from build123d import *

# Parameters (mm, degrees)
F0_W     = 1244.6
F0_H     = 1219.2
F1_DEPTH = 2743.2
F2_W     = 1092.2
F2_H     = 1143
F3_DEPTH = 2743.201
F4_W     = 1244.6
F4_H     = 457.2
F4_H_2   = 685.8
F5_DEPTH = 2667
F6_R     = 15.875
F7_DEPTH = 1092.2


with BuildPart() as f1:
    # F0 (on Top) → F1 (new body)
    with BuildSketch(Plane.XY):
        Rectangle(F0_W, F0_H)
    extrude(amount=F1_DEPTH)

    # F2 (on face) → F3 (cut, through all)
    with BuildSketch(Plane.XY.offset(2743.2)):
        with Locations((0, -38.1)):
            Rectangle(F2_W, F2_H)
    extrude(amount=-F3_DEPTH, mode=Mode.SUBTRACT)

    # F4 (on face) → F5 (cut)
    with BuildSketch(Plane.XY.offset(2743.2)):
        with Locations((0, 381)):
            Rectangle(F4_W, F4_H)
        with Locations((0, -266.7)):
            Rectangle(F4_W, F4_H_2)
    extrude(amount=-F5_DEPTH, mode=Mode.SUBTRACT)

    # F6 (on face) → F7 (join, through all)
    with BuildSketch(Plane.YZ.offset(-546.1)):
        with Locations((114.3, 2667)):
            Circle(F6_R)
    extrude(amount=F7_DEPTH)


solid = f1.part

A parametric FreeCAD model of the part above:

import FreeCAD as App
import Part
import Sketcher
from FreeCAD import Vector
Q = App.Units.Quantity


def add_polygon(sketch, points):
    """Adds a closed chain of lines whose ends are joined by coincident constraints."""
    first, n = sketch.GeometryCount, len(points)
    for a, b in zip(points, points[1:] + points[:1]):
        sketch.addGeometry(Part.LineSegment(App.Vector(*a, 0), App.Vector(*b, 0)), False)
    for i in range(n):
        sketch.addConstraint(Sketcher.Constraint("Coincident", first + i, 2, first + (i + 1) % n, 1))

doc = App.newDocument("Part")
body = doc.addObject("PartDesign::Body", "Body")

# Sketch on XY plane
sketch1 = body.newObject("Sketcher::SketchObject", "Sketch")
sketch1.AttachmentSupport = (doc.getObject("XY_Plane"), [""])
sketch1.MapMode = "FlatFace"
add_polygon(sketch1, [(-622, 610), (-622, -610), (622, -610), (622, 610)])  # lines 0-3
sketch1.addConstraint([
    Sketcher.Constraint("Vertical", 0),
    Sketcher.Constraint("Horizontal", 1),
    Sketcher.Constraint("Vertical", 2),
    Sketcher.Constraint("Horizontal", 3),
    Sketcher.Constraint("Symmetric", 0, 2, 2, 2, -1, 1),
    Sketcher.Constraint("DistanceX", 1, 1, 1, 2, Q("49 in")),
    Sketcher.Constraint("DistanceY", 0, 2, 0, 1, Q("48 in")),
])
pad1 = body.newObject("PartDesign::Pad", "Pad")
pad1.Profile = sketch1
pad1.Length = Q("108 in")

# Sketch on XY plane
sketch2 = body.newObject("Sketcher::SketchObject", "Sketch001")
sketch2.AttachmentSupport = (doc.getObject("XY_Plane"), [""])
sketch2.MapMode = "FlatFace"
sketch2.AttachmentOffset = App.Placement(Vector(0, 0, 108 * 25.4), App.Rotation())
add_polygon(sketch2, [(-546, 533), (-546, -610), (546, -610), (546, 533)])  # lines 0-3
sketch2.addConstraint([
    Sketcher.Constraint("Vertical", 0),
    Sketcher.Constraint("Horizontal", 1),
    Sketcher.Constraint("Vertical", 2),
    Sketcher.Constraint("Horizontal", 3),
    Sketcher.Constraint("DistanceX", 1, 1, 1, 2, Q("43 in")),
    Sketcher.Constraint("DistanceY", 0, 2, 0, 1, Q("45 in")),
    Sketcher.Constraint("DistanceY", 0, 2, -1, 1, Q("24 in")),
    Sketcher.Constraint("DistanceX", 0, 2, -1, 1, Q("21.5 in")),
])
pocket1 = body.newObject("PartDesign::Pocket", "Pocket")
pocket1.Profile = sketch2
pocket1.Type = "ThroughAll"

# Sketch on XY plane
sketch3 = body.newObject("Sketcher::SketchObject", "Sketch002")
sketch3.AttachmentSupport = (doc.getObject("XY_Plane"), [""])
sketch3.MapMode = "FlatFace"
sketch3.AttachmentOffset = App.Placement(Vector(0, 0, 108 * 25.4), App.Rotation())
add_polygon(sketch3, [(-622, 610), (-622, 152), (622, 152), (622, 610)])  # lines 0-3
add_polygon(sketch3, [(-622, 76), (-622, -610), (622, -610), (622, 76)])  # lines 4-7
sketch3.addConstraint([
    Sketcher.Constraint("Vertical", 0),
    Sketcher.Constraint("Horizontal", 1),
    Sketcher.Constraint("Vertical", 2),
    Sketcher.Constraint("Horizontal", 3),
    Sketcher.Constraint("Vertical", 4),
    Sketcher.Constraint("Horizontal", 5),
    Sketcher.Constraint("Vertical", 6),
    Sketcher.Constraint("Horizontal", 7),
    Sketcher.Constraint("Symmetric", 2, 2, 4, 2, -1, 1),
    Sketcher.Constraint("Vertical", 3, 2, 4, 2),
    Sketcher.Constraint("Vertical", 2, 2, 5, 2),
    Sketcher.Constraint("DistanceX", 1, 1, 1, 2, Q("49 in")),
    Sketcher.Constraint("DistanceY", 0, 2, 0, 1, Q("18 in")),
    Sketcher.Constraint("DistanceY", 4, 2, 4, 1, Q("27 in")),
    Sketcher.Constraint("DistanceY", -1, 1, 0, 2, Q("6 in")),
])
pocket2 = body.newObject("PartDesign::Pocket", "Pocket001")
pocket2.Profile = sketch3
pocket2.Length = Q("105 in")

# Sketch on YZ plane
sketch4 = body.newObject("Sketcher::SketchObject", "Sketch003")
sketch4.AttachmentSupport = (doc.getObject("YZ_Plane"), [""])
sketch4.MapMode = "FlatFace"
sketch4.AttachmentOffset = App.Placement(Vector(0, 0, -21.5 * 25.4), App.Rotation())
sketch4.addGeometry(Part.Circle(Vector(114, 2667, 0), Vector(0, 0, 1), 16), False)
sketch4.addConstraint([
    Sketcher.Constraint("Diameter", 0, Q("1.25 in")),
    Sketcher.Constraint("DistanceY", -1, 1, 0, 3, Q("105 in")),
    Sketcher.Constraint("DistanceX", -1, 1, 0, 3, Q("4.5 in")),
])
pad2 = body.newObject("PartDesign::Pad", "Pad001")
pad2.Profile = sketch4
pad2.Type = "UpToLast"

doc.recompute()
